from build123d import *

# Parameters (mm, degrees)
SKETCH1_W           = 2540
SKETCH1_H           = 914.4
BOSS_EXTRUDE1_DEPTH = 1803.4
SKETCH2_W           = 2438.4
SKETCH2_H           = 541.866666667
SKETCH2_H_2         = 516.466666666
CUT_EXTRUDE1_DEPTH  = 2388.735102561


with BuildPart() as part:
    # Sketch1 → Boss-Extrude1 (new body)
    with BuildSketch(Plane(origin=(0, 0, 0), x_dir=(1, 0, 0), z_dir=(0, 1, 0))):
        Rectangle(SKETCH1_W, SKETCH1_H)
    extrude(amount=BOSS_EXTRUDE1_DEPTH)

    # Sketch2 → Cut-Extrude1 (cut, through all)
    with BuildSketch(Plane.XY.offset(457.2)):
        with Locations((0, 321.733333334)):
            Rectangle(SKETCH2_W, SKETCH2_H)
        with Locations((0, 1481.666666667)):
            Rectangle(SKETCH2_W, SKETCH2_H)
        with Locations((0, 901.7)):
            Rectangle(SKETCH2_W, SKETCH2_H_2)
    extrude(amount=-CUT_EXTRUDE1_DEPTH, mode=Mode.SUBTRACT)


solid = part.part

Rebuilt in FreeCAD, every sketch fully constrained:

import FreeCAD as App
import Part
import Sketcher
from FreeCAD import Vector
Q = App.Units.Quantity

doc = App.newDocument("Part")
body = doc.addObject("PartDesign::Body", "Body")

sketch1 = body.newObject("Sketcher::SketchObject", "Sketch")
sketch1.AttachmentSupport = (doc.getObject("XZ_Plane"), [""])
sketch1.MapMode = "FlatFace"
sketch1.addGeometry([
    Part.LineSegment(Vector(-1270, -457.2, 0), Vector(-1270, 457.2, 0)),
    Part.LineSegment(Vector(-1270, 457.2, 0), Vector(1270, 457.2, 0)),
    Part.LineSegment(Vector(1270, 457.2, 0), Vector(1270, -457.2, 0)),
    Part.LineSegment(Vector(1270, -457.2, 0), Vector(-1270, -457.2, 0)),
], False)
sketch1.addConstraint([
    Sketcher.Constraint("Coincident", 0, 2, 1, 1),
    Sketcher.Constraint("Coincident", 1, 2, 2, 1),
    Sketcher.Constraint("Coincident", 2, 2, 3, 1),
    Sketcher.Constraint("Coincident", 3, 2, 0, 1),
    Sketcher.Constraint("Vertical", 0),
    Sketcher.Constraint("Horizontal", 1),
    Sketcher.Constraint("Vertical", 2),
    Sketcher.Constraint("Horizontal", 3),
    Sketcher.Constraint("Symmetric", 0, 2, 2, 2, -1, 1),
    Sketcher.Constraint("DistanceX", 1, 1, 1, 2, Q("100 in")),
    Sketcher.Constraint("DistanceY", 0, 1, 0, 2, Q("36 in")),
])
pad1 = body.newObject("PartDesign::Pad", "Pad")
pad1.Profile = sketch1
pad1.Length = Q("71 in")
pad1.Reversed = True

sketch2 = body.newObject("Sketcher::SketchObject", "Sketch001")
sketch2.AttachmentSupport = (doc.getObject("XY_Plane"), [""])
sketch2.MapMode = "FlatFace"
sketch2.AttachmentOffset = App.Placement(Vector(0, 0, 18 * 25.4), App.Rotation())
sketch2.addGeometry([
    Part.LineSegment(Vector(-1219.2, 592.666667, 0), Vector(-1219.2, 50.8, 0)),
    Part.LineSegment(Vector(-1219.2, 50.8, 0), Vector(1219.2, 50.8, 0)),
    Part.LineSegment(Vector(1219.2, 50.8, 0), Vector(1219.2, 592.666667, 0)),
    Part.LineSegment(Vector(1219.2, 592.666667, 0), Vector(-1219.2, 592.666667, 0)),
    Part.LineSegment(Vector(-1219.2, 1752.6, 0), Vector(-1219.2, 1210.733333, 0)),
    Part.LineSegment(Vector(-1219.2, 1210.733333, 0), Vector(1219.2, 1210.733333, 0)),
    Part.LineSegment(Vector(1219.2, 1210.733333, 0), Vector(1219.2, 1752.6, 0)),
    Part.LineSegment(Vector(1219.2, 1752.6, 0), Vector(-1219.2, 1752.6, 0)),
    Part.LineSegment(Vector(-1219.2, 1159.933333, 0), Vector(-1219.2, 643.466667, 0)),
    Part.LineSegment(Vector(-1219.2, 643.466667, 0), Vector(1219.2, 643.466667, 0)),
    Part.LineSegment(Vector(1219.2, 643.466667, 0), Vector(1219.2, 1159.933333, 0)),
    Part.LineSegment(Vector(1219.2, 1159.933333, 0), Vector(-1219.2, 1159.933333, 0)),
], False)
sketch2.addConstraint([
    Sketcher.Constraint("Coincident", 0, 2, 1, 1),
    Sketcher.Constraint("Coincident", 1, 2, 2, 1),
    Sketcher.Constraint("Coincident", 2, 2, 3, 1),
    Sketcher.Constraint("Coincident", 3, 2, 0, 1),
    Sketcher.Constraint("Coincident", 4, 2, 5, 1),
    Sketcher.Constraint("Coincident", 5, 2, 6, 1),
    Sketcher.Constraint("Coincident", 6, 2, 7, 1),
    Sketcher.Constraint("Coincident", 7, 2, 4, 1),
    Sketcher.Constraint("Coincident", 8, 2, 9, 1),
    Sketcher.Constraint("Coincident", 9, 2, 10, 1),
    Sketcher.Constraint("Coincident", 10, 2, 11, 1),
    Sketcher.Constraint("Coincident", 11, 2, 8, 1),
    Sketcher.Constraint("Vertical", 0),
    Sketcher.Constraint("Horizontal", 1),
    Sketcher.Constraint("Vertical", 2),
    Sketcher.Constraint("Horizontal", 3),
    Sketcher.Constraint("Vertical", 4),
    Sketcher.Constraint("Horizontal", 5),
    Sketcher.Constraint("Vertical", 6),
    Sketcher.Constraint("Horizontal", 7),
    Sketcher.Constraint("Vertical", 8),
    Sketcher.Constraint("Horizontal", 9),
    Sketcher.Constraint("Vertical", 10),
    Sketcher.Constraint("Horizontal", 11),
    Sketcher.Constraint("Vertical", 3, 2, 4, 2),
    Sketcher.Constraint("Vertical", 2, 2, 5, 2),
    Sketcher.Constraint("Vertical", 7, 2, 8, 2),
    Sketcher.Constraint("Vertical", 6, 2, 9, 2),
    Sketcher.Constraint("Equal", 2, 4),
    Sketcher.Constraint("DistanceX", 1, 1, 1, 2, Q("96 in")),
    Sketcher.Constraint("DistanceX", 0, 2, -1, 1, Q("48 in")),
    Sketcher.Constraint("DistanceY", -1, 1, 0, 2, Q("2 in")),
    Sketcher.Constraint("DistanceY", -1, 1, 6, 2, Q("69 in")),
    Sketcher.Constraint("DistanceY", 3, 2, 8, 2, Q("2 in")),
    Sketcher.Constraint("DistanceY", 10, 2, 5, 2, Q("2 in")),
    Sketcher.Constraint("DistanceY", 0, 2, 0, 1, Q("541.866667 mm")),
])
pocket1 = body.newObject("PartDesign::Pocket", "Pocket")
pocket1.Profile = sketch2
pocket1.Type = "ThroughAll"

doc.recompute()
